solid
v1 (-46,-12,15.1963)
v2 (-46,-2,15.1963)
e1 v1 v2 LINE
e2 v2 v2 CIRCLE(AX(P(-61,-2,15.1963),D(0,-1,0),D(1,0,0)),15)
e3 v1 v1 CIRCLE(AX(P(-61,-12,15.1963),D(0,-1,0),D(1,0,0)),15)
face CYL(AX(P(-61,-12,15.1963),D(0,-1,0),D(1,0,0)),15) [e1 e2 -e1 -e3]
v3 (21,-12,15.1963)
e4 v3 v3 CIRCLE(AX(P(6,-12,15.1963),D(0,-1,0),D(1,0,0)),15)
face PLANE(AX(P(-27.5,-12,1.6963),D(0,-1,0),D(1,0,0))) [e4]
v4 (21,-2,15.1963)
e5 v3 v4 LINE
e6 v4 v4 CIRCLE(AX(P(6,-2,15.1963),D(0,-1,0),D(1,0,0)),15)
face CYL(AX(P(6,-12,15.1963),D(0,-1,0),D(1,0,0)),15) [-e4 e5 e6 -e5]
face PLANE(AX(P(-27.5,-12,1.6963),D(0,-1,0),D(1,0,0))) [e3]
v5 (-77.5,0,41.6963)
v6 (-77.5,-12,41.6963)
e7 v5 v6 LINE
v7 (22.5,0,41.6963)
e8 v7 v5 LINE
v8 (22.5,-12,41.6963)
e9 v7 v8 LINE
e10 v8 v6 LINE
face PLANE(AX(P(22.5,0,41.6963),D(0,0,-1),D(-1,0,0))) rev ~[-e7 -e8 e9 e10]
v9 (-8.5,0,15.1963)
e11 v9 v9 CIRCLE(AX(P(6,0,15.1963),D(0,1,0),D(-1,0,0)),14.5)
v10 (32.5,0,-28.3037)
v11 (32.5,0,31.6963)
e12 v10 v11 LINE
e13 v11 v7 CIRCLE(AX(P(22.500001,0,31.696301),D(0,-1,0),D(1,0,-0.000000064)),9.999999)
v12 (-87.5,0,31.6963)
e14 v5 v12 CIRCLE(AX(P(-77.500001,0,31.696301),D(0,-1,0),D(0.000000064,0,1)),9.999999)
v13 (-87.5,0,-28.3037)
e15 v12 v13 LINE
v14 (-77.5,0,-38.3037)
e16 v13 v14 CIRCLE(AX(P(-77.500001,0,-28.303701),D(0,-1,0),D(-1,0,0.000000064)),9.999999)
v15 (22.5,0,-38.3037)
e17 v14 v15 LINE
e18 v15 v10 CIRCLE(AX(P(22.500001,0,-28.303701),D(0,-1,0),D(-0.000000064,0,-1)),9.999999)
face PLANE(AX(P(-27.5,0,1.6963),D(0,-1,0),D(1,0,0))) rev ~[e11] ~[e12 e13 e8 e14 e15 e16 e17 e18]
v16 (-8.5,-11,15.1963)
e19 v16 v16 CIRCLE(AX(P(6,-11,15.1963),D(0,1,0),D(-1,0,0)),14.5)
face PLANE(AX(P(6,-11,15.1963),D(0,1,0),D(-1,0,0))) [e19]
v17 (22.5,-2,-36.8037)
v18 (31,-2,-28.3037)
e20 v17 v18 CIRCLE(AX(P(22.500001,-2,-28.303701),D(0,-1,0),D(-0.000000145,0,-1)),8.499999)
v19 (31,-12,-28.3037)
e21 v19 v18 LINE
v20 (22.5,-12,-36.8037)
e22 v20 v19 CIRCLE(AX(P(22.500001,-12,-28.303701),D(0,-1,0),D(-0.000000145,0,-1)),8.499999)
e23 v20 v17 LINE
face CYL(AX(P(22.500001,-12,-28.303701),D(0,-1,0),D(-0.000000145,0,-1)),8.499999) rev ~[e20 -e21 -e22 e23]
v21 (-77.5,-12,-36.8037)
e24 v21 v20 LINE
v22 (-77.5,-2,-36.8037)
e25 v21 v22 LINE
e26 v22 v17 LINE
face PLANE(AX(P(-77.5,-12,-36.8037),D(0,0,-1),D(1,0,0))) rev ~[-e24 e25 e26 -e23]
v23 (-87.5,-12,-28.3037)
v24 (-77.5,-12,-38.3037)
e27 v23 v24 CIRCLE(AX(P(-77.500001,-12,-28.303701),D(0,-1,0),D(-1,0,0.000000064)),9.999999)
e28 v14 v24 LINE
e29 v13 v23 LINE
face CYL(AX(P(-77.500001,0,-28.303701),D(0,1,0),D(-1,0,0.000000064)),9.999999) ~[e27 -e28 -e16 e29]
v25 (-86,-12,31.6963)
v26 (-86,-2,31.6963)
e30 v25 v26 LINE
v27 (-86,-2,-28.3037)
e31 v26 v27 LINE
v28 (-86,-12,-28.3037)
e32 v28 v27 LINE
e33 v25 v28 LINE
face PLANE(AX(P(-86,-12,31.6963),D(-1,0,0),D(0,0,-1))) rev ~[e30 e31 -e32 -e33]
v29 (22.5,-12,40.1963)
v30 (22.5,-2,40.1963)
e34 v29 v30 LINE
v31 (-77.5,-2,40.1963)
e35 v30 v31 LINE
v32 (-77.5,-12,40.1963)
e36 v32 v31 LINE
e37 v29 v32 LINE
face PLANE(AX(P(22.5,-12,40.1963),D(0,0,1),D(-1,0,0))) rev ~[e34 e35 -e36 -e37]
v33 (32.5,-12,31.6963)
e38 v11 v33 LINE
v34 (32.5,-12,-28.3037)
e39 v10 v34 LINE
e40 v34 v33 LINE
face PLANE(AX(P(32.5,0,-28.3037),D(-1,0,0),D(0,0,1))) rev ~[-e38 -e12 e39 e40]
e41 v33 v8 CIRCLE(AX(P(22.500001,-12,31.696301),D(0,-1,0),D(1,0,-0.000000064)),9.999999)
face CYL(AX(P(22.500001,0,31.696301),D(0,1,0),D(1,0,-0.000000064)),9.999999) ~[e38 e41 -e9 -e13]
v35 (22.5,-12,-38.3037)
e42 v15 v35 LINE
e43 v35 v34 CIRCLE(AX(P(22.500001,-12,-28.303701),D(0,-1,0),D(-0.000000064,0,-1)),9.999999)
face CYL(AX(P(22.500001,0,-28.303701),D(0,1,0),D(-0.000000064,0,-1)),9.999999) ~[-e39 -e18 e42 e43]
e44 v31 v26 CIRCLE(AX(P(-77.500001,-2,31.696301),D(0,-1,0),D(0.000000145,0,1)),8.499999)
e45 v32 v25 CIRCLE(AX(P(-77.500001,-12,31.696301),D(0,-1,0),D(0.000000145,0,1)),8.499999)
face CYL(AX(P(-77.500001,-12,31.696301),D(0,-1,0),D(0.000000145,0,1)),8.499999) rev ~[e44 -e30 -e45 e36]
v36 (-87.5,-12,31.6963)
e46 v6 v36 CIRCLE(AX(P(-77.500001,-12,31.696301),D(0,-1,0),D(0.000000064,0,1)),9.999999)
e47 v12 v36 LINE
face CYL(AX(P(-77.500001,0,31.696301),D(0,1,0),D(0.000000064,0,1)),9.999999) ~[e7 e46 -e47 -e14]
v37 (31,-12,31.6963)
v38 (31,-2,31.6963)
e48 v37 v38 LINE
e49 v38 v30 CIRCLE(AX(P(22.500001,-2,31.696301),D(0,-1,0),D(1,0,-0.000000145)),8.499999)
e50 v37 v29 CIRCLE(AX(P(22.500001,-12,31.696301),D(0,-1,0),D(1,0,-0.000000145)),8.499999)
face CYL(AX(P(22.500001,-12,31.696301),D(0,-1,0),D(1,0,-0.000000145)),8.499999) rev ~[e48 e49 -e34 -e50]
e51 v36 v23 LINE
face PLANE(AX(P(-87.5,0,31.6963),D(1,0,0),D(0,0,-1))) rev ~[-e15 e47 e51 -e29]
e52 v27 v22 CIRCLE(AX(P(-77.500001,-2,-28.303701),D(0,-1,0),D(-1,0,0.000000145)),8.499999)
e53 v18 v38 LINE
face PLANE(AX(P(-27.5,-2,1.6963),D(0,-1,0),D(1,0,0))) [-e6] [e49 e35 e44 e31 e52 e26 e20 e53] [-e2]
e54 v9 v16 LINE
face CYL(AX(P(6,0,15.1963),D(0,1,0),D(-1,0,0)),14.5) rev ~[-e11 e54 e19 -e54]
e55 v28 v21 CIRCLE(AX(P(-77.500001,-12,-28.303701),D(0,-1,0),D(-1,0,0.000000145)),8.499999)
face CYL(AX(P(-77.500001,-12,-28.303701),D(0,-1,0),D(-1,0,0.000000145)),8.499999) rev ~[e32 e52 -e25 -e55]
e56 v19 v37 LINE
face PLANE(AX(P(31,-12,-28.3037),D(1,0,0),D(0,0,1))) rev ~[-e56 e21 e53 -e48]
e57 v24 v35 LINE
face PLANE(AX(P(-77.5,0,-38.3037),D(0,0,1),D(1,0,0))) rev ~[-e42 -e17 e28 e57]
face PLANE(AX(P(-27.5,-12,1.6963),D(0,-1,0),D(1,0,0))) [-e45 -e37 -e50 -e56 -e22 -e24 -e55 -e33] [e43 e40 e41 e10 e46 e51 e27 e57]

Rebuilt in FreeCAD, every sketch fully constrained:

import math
import FreeCAD as App
import Part
import Sketcher

doc = App.newDocument("Part")
params = doc.addObject("Spreadsheet::Sheet", "Params")
for row, (alias, value) in enumerate([
    ("sketch1_radius", "9.999999 mm"),
    ("sketch1_width", "100 mm"),
    ("sketch1_height", "60 mm"),
    ("pad1_length", "12 mm"),
    ("sketch2_diameter", "30 mm"),
    ("sketch2_radius", "8.499999 mm"),
    ("sketch2_width", "100 mm"),
    ("sketch2_height", "60 mm"),
    ("pocket1_length", "10 mm"),
    ("sketch3_diameter", "29 mm"),
    ("pocket2_length", "11 mm"),
], start=1):
    params.set(f"A{row}", alias)
    params.set(f"B{row}", "=" + value)
    params.setAlias(f"B{row}", alias)

body = doc.addObject("PartDesign::Body", "Body")

# Sketch on XZ plane
sketch1 = doc.addObject("Sketcher::SketchObject", "Sketch")
body.addObject(sketch1)
sketch1.AttachmentSupport = (doc.XZ_Plane, [""])
sketch1.MapMode = "FlatFace"
sketch1.addGeometry([
    Part.ArcOfCircle(Part.Circle(App.Vector(-77.500001, -28.303701, 0), App.Vector(0, 0, 1), 9.999999), math.radians(179.999996), math.radians(270.000004)),  # 0
    Part.LineSegment(App.Vector(-77.5, -38.3037, 0), App.Vector(22.5, -38.3037, 0)),  # 1
    Part.ArcOfCircle(Part.Circle(App.Vector(22.500001, -28.303701, 0), App.Vector(0, 0, 1), 9.999999), math.radians(-90.000004), math.radians(0.000004)),  # 2
    Part.LineSegment(App.Vector(32.5, -28.3037, 0), App.Vector(32.5, 31.6963, 0)),  # 3
    Part.ArcOfCircle(Part.Circle(App.Vector(22.500001, 31.696301, 0), App.Vector(0, 0, 1), 9.999999), math.radians(-0.000004), math.radians(90.000004)),  # 4
    Part.LineSegment(App.Vector(22.5, 41.6963, 0), App.Vector(-77.5, 41.6963, 0)),  # 5
    Part.ArcOfCircle(Part.Circle(App.Vector(-77.500001, 31.696301, 0), App.Vector(0, 0, 1), 9.999999), math.radians(89.999996), math.radians(180.000004)),  # 6
    Part.LineSegment(App.Vector(-87.5, 31.6963, 0), App.Vector(-87.5, -28.3037, 0)),  # 7
], False)
sketch1.addConstraint([
    Sketcher.Constraint("Tangent", 0, 2, 1, 1),
    Sketcher.Constraint("Tangent", 1, 2, 2, 1),
    Sketcher.Constraint("Tangent", 2, 2, 3, 1),
    Sketcher.Constraint("Tangent", 3, 2, 4, 1),
    Sketcher.Constraint("Tangent", 4, 2, 5, 1),
    Sketcher.Constraint("Tangent", 5, 2, 6, 1),
    Sketcher.Constraint("Tangent", 6, 2, 7, 1),
    Sketcher.Constraint("Tangent", 7, 2, 0, 1),
    Sketcher.Constraint("Horizontal", 1),
    Sketcher.Constraint("Vertical", 3),
    Sketcher.Constraint("Horizontal", 5),
    Sketcher.Constraint("Vertical", 7),
    Sketcher.Constraint("Equal", 0, 2),
    Sketcher.Constraint("Equal", 2, 4),
    Sketcher.Constraint("Equal", 4, 6),
    Sketcher.Constraint("Radius", 0, 9.999999),
    Sketcher.Constraint("DistanceX", 1, 1, 1, 2, 100.0),
    Sketcher.Constraint("DistanceY", 3, 1, 3, 2, 60.0),
    Sketcher.Constraint("DistanceX", 0, 3, -1, 1, 77.500001),
    Sketcher.Constraint("DistanceY", 0, 3, -1, 1, 28.303701),
])
sketch1.setExpression("Constraints[15]", "Params.sketch1_radius")
sketch1.setExpression("Constraints[16]", "Params.sketch1_width")
sketch1.setExpression("Constraints[17]", "Params.sketch1_height")
pad1 = doc.addObject("PartDesign::Pad", "Pad")
body.addObject(pad1)
pad1.Profile = sketch1
pad1.setExpression("Length", "Params.pad1_length")

# Sketch on XZ plane
sketch2 = doc.addObject("Sketcher::SketchObject", "Sketch001")
body.addObject(sketch2)
sketch2.AttachmentSupport = (doc.XZ_Plane, [""])
sketch2.MapMode = "FlatFace"
sketch2.AttachmentOffset = App.Placement(App.Vector(0, 0, 12), App.Rotation())
sketch2.addGeometry([
    Part.LineSegment(App.Vector(31, -28.3037, 0), App.Vector(31, 31.6963, 0)),  # 0
    Part.ArcOfCircle(Part.Circle(App.Vector(22.500001, 31.696301, 0), App.Vector(0, 0, 1), 8.499999), math.radians(-0.000008), math.radians(90.000008)),  # 1
    Part.LineSegment(App.Vector(22.5, 40.1963, 0), App.Vector(-77.5, 40.1963, 0)),  # 2
    Part.ArcOfCircle(Part.Circle(App.Vector(-77.500001, 31.696301, 0), App.Vector(0, 0, 1), 8.499999), math.radians(89.999992), math.radians(180.000008)),  # 3
    Part.LineSegment(App.Vector(-86, 31.6963, 0), App.Vector(-86, -28.3037, 0)),  # 4
    Part.ArcOfCircle(Part.Circle(App.Vector(-77.500001, -28.303701, 0), App.Vector(0, 0, 1), 8.499999), math.radians(179.999992), math.radians(270.000008)),  # 5
    Part.LineSegment(App.Vector(-77.5, -36.8037, 0), App.Vector(22.5, -36.8037, 0)),  # 6
    Part.ArcOfCircle(Part.Circle(App.Vector(22.500001, -28.303701, 0), App.Vector(0, 0, 1), 8.499999), math.radians(-90.000008), math.radians(0.000008)),  # 7
    Part.Circle(App.Vector(-61, 15.1963, 0), App.Vector(0, 0, 1), 15),  # 8
    Part.Circle(App.Vector(6, 15.1963, 0), App.Vector(0, 0, 1), 15),  # 9
], False)
sketch2.addConstraint([
    Sketcher.Constraint("Tangent", 0, 2, 1, 1),
    Sketcher.Constraint("Tangent", 1, 2, 2, 1),
    Sketcher.Constraint("Tangent", 2, 2, 3, 1),
    Sketcher.Constraint("Tangent", 3, 2, 4, 1),
    Sketcher.Constraint("Tangent", 4, 2, 5, 1),
    Sketcher.Constraint("Tangent", 5, 2, 6, 1),
    Sketcher.Constraint("Tangent", 6, 2, 7, 1),
    Sketcher.Constraint("Tangent", 7, 2, 0, 1),
    Sketcher.Constraint("Vertical", 0),
    Sketcher.Constraint("Horizontal", 2),
    Sketcher.Constraint("Vertical", 4),
    Sketcher.Constraint("Horizontal", 6),
    Sketcher.Constraint("Equal", 1, 3),
    Sketcher.Constraint("Equal", 3, 5),
    Sketcher.Constraint("Equal", 5, 7),
    Sketcher.Constraint("Equal", 8, 9),
    Sketcher.Constraint("Horizontal", 8, 3, 9, 3),
    Sketcher.Constraint("Diameter", 8, 30.0),
    Sketcher.Constraint("Radius", 1, 8.499999),
    Sketcher.Constraint("DistanceX", 2, 2, 2, 1, 100.0),
    Sketcher.Constraint("DistanceY", 0, 1, 0, 2, 60.0),
    Sketcher.Constraint("DistanceX", 8, 3, -1, 1, 61.0),
    Sketcher.Constraint("DistanceX", -1, 1, 9, 3, 6.0),
    Sketcher.Constraint("DistanceX", -1, 1, 0, 2, 31.0),
    Sketcher.Constraint("DistanceY", 9, 3, 1, 2, 25.0),
    Sketcher.Constraint("DistanceY", -1, 1, 1, 3, 31.696301),
])
sketch2.setExpression("Constraints[17]", "Params.sketch2_diameter")
sketch2.setExpression("Constraints[18]", "Params.sketch2_radius")
sketch2.setExpression("Constraints[19]", "Params.sketch2_width")
sketch2.setExpression("Constraints[20]", "Params.sketch2_height")
pocket1 = doc.addObject("PartDesign::Pocket", "Pocket")
body.addObject(pocket1)
pocket1.Profile = sketch2
pocket1.setExpression("Length", "Params.pocket1_length")

# Sketch on XZ plane
sketch3 = doc.addObject("Sketcher::SketchObject", "Sketch002")
body.addObject(sketch3)
sketch3.AttachmentSupport = (doc.XZ_Plane, [""])
sketch3.MapMode = "FlatFace"
sketch3.addGeometry(Part.Circle(App.Vector(6, 15.1963, 0), App.Vector(0, 0, 1), 14.5), False)
sketch3.addConstraint([
    Sketcher.Constraint("Diameter", 0, 29.0),
    Sketcher.Constraint("DistanceX", -1, 1, 0, 3, 6.0),
    Sketcher.Constraint("DistanceY", -1, 1, 0, 3, 15.1963),
])
sketch3.setExpression("Constraints[0]", "Params.sketch3_diameter")
pocket2 = doc.addObject("PartDesign::Pocket", "Pocket001")
body.addObject(pocket2)
pocket2.Profile = sketch3
pocket2.setExpression("Length", "Params.pocket2_length")
pocket2.Reversed = True

doc.recompute()
